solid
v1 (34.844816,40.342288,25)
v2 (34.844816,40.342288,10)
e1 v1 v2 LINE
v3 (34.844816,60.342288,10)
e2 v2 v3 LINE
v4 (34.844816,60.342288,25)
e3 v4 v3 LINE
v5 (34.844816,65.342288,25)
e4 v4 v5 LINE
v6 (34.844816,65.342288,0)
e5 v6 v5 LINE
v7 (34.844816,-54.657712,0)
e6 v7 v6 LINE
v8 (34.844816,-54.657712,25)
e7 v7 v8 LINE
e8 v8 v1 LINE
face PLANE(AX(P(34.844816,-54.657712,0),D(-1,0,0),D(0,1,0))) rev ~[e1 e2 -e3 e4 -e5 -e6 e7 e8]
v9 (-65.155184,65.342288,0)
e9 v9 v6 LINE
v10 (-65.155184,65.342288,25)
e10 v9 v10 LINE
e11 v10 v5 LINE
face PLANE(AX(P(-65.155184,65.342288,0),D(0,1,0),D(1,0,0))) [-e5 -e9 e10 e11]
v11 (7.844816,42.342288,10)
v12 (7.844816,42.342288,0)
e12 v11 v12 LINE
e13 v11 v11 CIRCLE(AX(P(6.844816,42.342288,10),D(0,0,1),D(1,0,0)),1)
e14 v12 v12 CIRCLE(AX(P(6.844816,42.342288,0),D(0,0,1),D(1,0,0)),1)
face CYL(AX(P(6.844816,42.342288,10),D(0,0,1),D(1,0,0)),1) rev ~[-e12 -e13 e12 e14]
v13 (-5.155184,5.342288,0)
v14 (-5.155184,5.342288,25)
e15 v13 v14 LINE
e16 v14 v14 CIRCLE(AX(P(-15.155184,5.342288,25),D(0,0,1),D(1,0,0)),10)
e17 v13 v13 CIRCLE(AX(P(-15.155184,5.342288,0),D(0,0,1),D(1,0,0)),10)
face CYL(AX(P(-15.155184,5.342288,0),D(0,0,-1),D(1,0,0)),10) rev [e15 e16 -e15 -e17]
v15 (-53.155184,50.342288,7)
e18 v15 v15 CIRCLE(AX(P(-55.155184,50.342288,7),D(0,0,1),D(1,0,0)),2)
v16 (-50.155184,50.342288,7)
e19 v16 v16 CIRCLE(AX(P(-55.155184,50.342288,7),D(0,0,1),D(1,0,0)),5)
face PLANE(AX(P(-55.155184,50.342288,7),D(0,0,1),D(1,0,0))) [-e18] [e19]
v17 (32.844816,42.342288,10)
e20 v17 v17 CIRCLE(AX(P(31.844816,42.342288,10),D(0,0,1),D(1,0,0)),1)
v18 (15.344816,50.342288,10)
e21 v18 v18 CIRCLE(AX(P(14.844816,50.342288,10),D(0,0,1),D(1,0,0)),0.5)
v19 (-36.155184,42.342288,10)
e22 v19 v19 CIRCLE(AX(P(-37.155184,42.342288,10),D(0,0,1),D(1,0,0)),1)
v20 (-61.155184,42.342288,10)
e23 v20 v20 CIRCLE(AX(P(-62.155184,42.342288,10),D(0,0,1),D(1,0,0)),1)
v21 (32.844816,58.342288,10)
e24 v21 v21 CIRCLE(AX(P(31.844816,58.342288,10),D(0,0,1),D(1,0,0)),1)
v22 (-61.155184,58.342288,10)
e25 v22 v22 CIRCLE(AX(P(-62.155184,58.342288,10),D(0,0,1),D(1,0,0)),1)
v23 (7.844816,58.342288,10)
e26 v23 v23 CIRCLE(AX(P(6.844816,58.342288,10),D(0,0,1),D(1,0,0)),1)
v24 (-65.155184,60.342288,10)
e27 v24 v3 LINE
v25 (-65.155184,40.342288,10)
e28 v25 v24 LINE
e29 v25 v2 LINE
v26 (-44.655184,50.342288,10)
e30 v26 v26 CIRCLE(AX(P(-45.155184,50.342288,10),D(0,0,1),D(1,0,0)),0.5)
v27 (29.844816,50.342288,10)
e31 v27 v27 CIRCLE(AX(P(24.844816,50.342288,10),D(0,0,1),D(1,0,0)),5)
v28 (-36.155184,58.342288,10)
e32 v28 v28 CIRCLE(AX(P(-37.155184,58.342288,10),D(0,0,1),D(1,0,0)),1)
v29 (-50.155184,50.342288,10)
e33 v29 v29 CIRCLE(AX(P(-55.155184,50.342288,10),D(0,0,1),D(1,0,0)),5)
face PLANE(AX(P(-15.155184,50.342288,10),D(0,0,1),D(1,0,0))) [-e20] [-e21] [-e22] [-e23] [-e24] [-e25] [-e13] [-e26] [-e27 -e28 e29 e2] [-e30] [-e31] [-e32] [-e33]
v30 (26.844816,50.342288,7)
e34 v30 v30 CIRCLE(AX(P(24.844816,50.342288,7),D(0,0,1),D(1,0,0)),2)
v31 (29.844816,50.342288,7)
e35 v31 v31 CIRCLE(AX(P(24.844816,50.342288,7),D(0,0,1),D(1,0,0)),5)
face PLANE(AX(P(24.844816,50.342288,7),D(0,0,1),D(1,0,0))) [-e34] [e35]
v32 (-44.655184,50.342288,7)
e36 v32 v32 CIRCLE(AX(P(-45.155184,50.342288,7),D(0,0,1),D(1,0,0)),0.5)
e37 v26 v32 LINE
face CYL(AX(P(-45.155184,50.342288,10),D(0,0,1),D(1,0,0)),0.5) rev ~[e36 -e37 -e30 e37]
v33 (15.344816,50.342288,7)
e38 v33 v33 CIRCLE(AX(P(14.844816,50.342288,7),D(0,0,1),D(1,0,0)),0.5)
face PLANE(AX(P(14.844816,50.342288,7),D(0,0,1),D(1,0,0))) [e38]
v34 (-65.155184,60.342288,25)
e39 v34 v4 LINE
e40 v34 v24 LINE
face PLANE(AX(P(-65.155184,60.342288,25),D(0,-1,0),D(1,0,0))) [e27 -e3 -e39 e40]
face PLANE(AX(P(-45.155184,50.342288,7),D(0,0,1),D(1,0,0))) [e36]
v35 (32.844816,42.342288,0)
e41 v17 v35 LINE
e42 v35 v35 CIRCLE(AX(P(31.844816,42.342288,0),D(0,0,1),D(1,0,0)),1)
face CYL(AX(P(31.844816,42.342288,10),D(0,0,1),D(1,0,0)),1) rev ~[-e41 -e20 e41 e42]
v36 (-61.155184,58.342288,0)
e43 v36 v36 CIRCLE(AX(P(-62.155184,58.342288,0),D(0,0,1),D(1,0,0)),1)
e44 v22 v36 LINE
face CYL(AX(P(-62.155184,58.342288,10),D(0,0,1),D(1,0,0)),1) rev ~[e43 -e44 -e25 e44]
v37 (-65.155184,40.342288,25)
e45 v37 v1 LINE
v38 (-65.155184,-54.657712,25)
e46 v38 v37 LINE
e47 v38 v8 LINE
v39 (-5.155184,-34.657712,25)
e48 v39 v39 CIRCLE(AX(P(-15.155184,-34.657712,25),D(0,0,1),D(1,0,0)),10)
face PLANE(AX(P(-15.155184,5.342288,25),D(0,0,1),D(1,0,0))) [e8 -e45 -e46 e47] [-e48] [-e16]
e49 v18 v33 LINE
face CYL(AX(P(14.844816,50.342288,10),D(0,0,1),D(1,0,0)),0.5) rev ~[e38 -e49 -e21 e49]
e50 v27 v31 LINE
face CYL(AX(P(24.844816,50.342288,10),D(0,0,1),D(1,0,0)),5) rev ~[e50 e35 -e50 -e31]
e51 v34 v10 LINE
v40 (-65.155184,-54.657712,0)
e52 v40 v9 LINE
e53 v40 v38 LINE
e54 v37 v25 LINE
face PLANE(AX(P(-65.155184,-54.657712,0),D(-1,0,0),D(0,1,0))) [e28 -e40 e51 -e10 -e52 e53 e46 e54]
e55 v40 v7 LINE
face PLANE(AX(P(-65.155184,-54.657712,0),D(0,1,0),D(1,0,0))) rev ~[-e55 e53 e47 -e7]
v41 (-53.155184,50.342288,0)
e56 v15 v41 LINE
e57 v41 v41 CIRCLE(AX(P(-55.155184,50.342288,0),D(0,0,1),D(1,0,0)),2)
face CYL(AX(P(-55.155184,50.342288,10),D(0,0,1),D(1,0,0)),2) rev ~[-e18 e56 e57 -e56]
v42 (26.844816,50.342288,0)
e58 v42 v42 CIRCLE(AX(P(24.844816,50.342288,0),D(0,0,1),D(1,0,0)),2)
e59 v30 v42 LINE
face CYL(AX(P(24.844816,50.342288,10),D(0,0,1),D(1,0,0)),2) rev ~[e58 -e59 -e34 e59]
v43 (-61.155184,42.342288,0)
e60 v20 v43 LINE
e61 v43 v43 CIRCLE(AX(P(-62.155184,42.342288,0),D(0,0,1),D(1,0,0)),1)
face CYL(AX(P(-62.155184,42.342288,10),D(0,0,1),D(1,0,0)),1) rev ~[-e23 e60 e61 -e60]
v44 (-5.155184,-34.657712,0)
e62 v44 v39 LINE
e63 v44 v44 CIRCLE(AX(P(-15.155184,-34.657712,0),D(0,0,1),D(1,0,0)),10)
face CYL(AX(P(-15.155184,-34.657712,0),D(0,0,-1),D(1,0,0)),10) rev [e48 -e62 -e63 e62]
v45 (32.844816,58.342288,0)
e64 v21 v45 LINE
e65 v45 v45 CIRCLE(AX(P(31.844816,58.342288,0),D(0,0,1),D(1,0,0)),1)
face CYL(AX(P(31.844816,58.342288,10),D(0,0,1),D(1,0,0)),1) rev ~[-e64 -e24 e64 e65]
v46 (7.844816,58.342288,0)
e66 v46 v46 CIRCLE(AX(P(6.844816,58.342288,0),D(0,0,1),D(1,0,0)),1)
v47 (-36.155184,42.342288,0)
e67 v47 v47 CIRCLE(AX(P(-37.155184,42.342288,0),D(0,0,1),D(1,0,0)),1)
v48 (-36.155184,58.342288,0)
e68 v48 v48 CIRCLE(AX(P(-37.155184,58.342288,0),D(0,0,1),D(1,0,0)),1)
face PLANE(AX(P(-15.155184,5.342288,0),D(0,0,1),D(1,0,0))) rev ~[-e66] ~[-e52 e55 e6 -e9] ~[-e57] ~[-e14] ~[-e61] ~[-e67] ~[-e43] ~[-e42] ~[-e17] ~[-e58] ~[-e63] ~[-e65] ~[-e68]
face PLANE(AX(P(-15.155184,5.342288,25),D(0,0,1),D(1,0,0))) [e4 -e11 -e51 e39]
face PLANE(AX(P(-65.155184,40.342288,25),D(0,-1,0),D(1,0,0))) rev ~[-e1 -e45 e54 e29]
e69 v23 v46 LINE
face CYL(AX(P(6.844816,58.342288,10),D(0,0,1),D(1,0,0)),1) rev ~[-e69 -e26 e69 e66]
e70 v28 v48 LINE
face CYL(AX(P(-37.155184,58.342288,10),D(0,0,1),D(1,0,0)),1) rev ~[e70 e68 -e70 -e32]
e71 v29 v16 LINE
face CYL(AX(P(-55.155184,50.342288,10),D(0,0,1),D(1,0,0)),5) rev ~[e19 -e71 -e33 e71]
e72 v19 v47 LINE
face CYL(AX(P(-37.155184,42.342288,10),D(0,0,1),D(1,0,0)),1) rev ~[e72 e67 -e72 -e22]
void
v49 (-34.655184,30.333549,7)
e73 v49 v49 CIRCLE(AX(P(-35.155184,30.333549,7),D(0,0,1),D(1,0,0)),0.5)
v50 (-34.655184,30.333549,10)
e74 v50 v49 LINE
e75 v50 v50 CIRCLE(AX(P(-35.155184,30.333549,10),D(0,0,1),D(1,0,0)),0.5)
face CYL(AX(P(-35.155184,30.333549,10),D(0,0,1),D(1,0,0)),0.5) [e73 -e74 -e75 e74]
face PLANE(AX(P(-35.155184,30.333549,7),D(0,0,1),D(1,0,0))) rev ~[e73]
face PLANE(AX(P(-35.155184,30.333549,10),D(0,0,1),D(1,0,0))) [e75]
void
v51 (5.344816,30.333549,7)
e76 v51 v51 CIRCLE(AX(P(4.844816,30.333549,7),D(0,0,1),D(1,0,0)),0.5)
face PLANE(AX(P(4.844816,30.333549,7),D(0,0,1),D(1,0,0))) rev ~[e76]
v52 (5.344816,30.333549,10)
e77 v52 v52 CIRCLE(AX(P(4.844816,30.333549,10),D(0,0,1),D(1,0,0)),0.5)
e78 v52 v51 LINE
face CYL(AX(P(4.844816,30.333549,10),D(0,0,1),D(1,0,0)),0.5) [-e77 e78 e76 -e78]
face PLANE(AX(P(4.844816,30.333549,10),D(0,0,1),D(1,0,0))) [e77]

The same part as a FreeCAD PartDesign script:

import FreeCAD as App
import Part
import Sketcher


def add_polygon(sketch, points):
    """Adds a closed chain of lines whose ends are joined by coincident constraints."""
    first, n = sketch.GeometryCount, len(points)
    for a, b in zip(points, points[1:] + points[:1]):
        sketch.addGeometry(Part.LineSegment(App.Vector(*a, 0), App.Vector(*b, 0)), False)
    for i in range(n):
        sketch.addConstraint(Sketcher.Constraint("Coincident", first + i, 2, first + (i + 1) % n, 1))

doc = App.newDocument("Part")
body = doc.addObject("PartDesign::Body", "Body")

# Sketch on XY plane
sketch1 = doc.addObject("Sketcher::SketchObject", "Sketch")
body.addObject(sketch1)
sketch1.AttachmentSupport = (doc.XY_Plane, [""])
sketch1.MapMode = "FlatFace"
add_polygon(sketch1, [(-65, 65), (-65, -55), (35, -55), (35, 65)])  # lines 0-3
sketch1.addGeometry(Part.Circle(App.Vector(-15, -35, 0), App.Vector(0, 0, 1), 10), False)  # 4
sketch1.addGeometry(Part.Circle(App.Vector(-15, 5, 0), App.Vector(0, 0, 1), 10), False)  # 5
sketch1.addConstraint(Sketcher.Constraint("Vertical", 0))
sketch1.addConstraint(Sketcher.Constraint("Horizontal", 1))
sketch1.addConstraint(Sketcher.Constraint("Vertical", 2))
sketch1.addConstraint(Sketcher.Constraint("Horizontal", 3))
sketch1.addConstraint(Sketcher.Constraint("Equal", 4, 5))
sketch1.addConstraint(Sketcher.Constraint("Vertical", 4, 3, 5, 3))
sketch1.addConstraint(Sketcher.Constraint("Diameter", 4, 20.0))
sketch1.addConstraint(Sketcher.Constraint("DistanceX", 1, 1, 1, 2, 100.0))
sketch1.addConstraint(Sketcher.Constraint("DistanceY", 0, 2, 0, 1, 120.0))
sketch1.addConstraint(Sketcher.Constraint("DistanceY", 4, 3, 5, 3, 40.0))
sketch1.addConstraint(Sketcher.Constraint("DistanceX", 0, 2, 4, 3, 50.0))
sketch1.addConstraint(Sketcher.Constraint("DistanceY", 0, 2, 4, 3, 20.0))
sketch1.addConstraint(Sketcher.Constraint("DistanceY", 4, 3, -1, 1, 34.657712))
sketch1.addConstraint(Sketcher.Constraint("DistanceX", 4, 3, -1, 1, 15.155184))
pad1 = doc.addObject("PartDesign::Pad", "Pad")
body.addObject(pad1)
pad1.Profile = sketch1
pad1.Length = 25

# Sketch on XY plane
sketch2 = doc.addObject("Sketcher::SketchObject", "Sketch001")
body.addObject(sketch2)
sketch2.AttachmentSupport = (doc.XY_Plane, [""])
sketch2.MapMode = "FlatFace"
sketch2.AttachmentOffset = App.Placement(App.Vector(0, 0, 25), App.Rotation())
add_polygon(sketch2, [(-65, 60), (-65, 40), (35, 40), (35, 60)])  # lines 0-3
sketch2.addConstraint(Sketcher.Constraint("Vertical", 0))
sketch2.addConstraint(Sketcher.Constraint("Horizontal", 1))
sketch2.addConstraint(Sketcher.Constraint("Vertical", 2))
sketch2.addConstraint(Sketcher.Constraint("Horizontal", 3))
sketch2.addConstraint(Sketcher.Constraint("DistanceX", 1, 1, 1, 2, 100.0))
sketch2.addConstraint(Sketcher.Constraint("DistanceY", 0, 2, 0, 1, 20.0))
sketch2.addConstraint(Sketcher.Constraint("DistanceY", -1, 1, 0, 2, 40.342288))
sketch2.addConstraint(Sketcher.Constraint("DistanceX", 0, 2, -1, 1, 65.155184))
pocket1 = doc.addObject("PartDesign::Pocket", "Pocket")
body.addObject(pocket1)
pocket1.Profile = sketch2
pocket1.Length = 15

# Sketch on XY plane
sketch3 = doc.addObject("Sketcher::SketchObject", "Sketch002")
body.addObject(sketch3)
sketch3.AttachmentSupport = (doc.XY_Plane, [""])
sketch3.MapMode = "FlatFace"
sketch3.AttachmentOffset = App.Placement(App.Vector(0, 0, 10), App.Rotation())
sketch3.addGeometry(Part.Circle(App.Vector(-62.2, 58.3, 0), App.Vector(0, 0, 1), 1), False)
sketch3.addGeometry(Part.Circle(App.Vector(-37.2, 58.3, 0), App.Vector(0, 0, 1), 1), False)
sketch3.addGeometry(Part.Circle(App.Vector(-55.2, 50.3, 0), App.Vector(0, 0, 1), 5), False)
sketch3.addGeometry(Part.Circle(App.Vector(-45.2, 50.3, 0), App.Vector(0, 0, 1), 0.5), False)
sketch3.addGeometry(Part.Circle(App.Vector(-35.2, 30.3, 0), App.Vector(0, 0, 1), 0.5), False)
sketch3.addGeometry(Part.Circle(App.Vector(-62.2, 42.3, 0), App.Vector(0, 0, 1), 1), False)
sketch3.addGeometry(Part.Circle(App.Vector(-37.2, 42.3, 0), App.Vector(0, 0, 1), 1), False)
sketch3.addGeometry(Part.Circle(App.Vector(31.8, 58.3, 0), App.Vector(0, 0, 1), 1), False)
sketch3.addGeometry(Part.Circle(App.Vector(6.8, 58.3, 0), App.Vector(0, 0, 1), 1), False)
sketch3.addGeometry(Part.Circle(App.Vector(24.8, 50.3, 0), App.Vector(0, 0, 1), 5), False)
sketch3.addGeometry(Part.Circle(App.Vector(31.8, 42.3, 0), App.Vector(0, 0, 1), 1), False)
sketch3.addGeometry(Part.Circle(App.Vector(6.8, 42.3, 0), App.Vector(0, 0, 1), 1), False)
sketch3.addGeometry(Part.Circle(App.Vector(14.8, 50.3, 0), App.Vector(0, 0, 1), 0.5), False)
sketch3.addGeometry(Part.Circle(App.Vector(4.8, 30.3, 0), App.Vector(0, 0, 1), 0.5), False)
sketch3.addConstraint(Sketcher.Constraint("Equal", 0, 1))
sketch3.addConstraint(Sketcher.Constraint("Equal", 3, 4))
sketch3.addConstraint(Sketcher.Constraint("Equal", 1, 5))
sketch3.addConstraint(Sketcher.Constraint("Equal", 5, 6))
sketch3.addConstraint(Sketcher.Constraint("Equal", 6, 7))
sketch3.addConstraint(Sketcher.Constraint("Equal", 7, 8))
sketch3.addConstraint(Sketcher.Constraint("Equal", 2, 9))
sketch3.addConstraint(Sketcher.Constraint("Equal", 8, 10))
sketch3.addConstraint(Sketcher.Constraint("Equal", 10, 11))
sketch3.addConstraint(Sketcher.Constraint("Equal", 4, 12))
sketch3.addConstraint(Sketcher.Constraint("Equal", 12, 13))
sketch3.addConstraint(Sketcher.Constraint("Horizontal", 0, 3, 1, 3))
sketch3.addConstraint(Sketcher.Constraint("Horizontal", 2, 3, 3, 3))
sketch3.addConstraint(Sketcher.Constraint("Horizontal", 5, 3, 6, 3))
sketch3.addConstraint(Sketcher.Constraint("Horizontal", 1, 3, 7, 3))
sketch3.addConstraint(Sketcher.Constraint("Horizontal", 7, 3, 8, 3))
sketch3.addConstraint(Sketcher.Constraint("Horizontal", 3, 3, 9, 3))
sketch3.addConstraint(Sketcher.Constraint("Horizontal", 6, 3, 10, 3))
sketch3.addConstraint(Sketcher.Constraint("Horizontal", 10, 3, 11, 3))
sketch3.addConstraint(Sketcher.Constraint("Horizontal", 9, 3, 12, 3))
sketch3.addConstraint(Sketcher.Constraint("Horizontal", 4, 3, 13, 3))
sketch3.addConstraint(Sketcher.Constraint("Vertical", 0, 3, 5, 3))
sketch3.addConstraint(Sketcher.Constraint("Vertical", 1, 3, 6, 3))
sketch3.addConstraint(Sketcher.Constraint("Vertical", 7, 3, 10, 3))
sketch3.addConstraint(Sketcher.Constraint("Vertical", 8, 3, 11, 3))
sketch3.addConstraint(Sketcher.Constraint("Diameter", 0, 2.0))
sketch3.addConstraint(Sketcher.Constraint("Diameter", 2, 10.0))
sketch3.addConstraint(Sketcher.Constraint("Diameter", 3, 1.0))
sketch3.addConstraint(Sketcher.Constraint("DistanceX", 0, 3, 1, 3, 25.0))
sketch3.addConstraint(Sketcher.Constraint("DistanceX", 0, 3, 2, 3, 7.0))
sketch3.addConstraint(Sketcher.Constraint("DistanceY", 2, 3, 0, 3, 8.0))
sketch3.addConstraint(Sketcher.Constraint("DistanceX", 2, 3, 3, 3, 10.0))
sketch3.addConstraint(Sketcher.Constraint("DistanceX", 3, 3, 4, 3, 10.0))
sketch3.addConstraint(Sketcher.Constraint("DistanceY", 5, 3, 2, 3, 8.0))
sketch3.addConstraint(Sketcher.Constraint("DistanceX", 1, 3, 7, 3, 69.0))
sketch3.addConstraint(Sketcher.Constraint("DistanceX", 8, 3, 7, 3, 25.0))
sketch3.addConstraint(Sketcher.Constraint("DistanceX", 9, 3, 7, 3, 7.0))
sketch3.addConstraint(Sketcher.Constraint("DistanceX", 12, 3, 9, 3, 10.0))
sketch3.addConstraint(Sketcher.Constraint("DistanceX", 13, 3, 11, 3, 2.0))
sketch3.addConstraint(Sketcher.Constraint("DistanceY", -1, 1, 0, 3, 58.342288))
sketch3.addConstraint(Sketcher.Constraint("DistanceY", -1, 1, 4, 3, 30.333549))
sketch3.addConstraint(Sketcher.Constraint("DistanceX", 0, 3, -1, 1, 62.155184))
pocket2 = doc.addObject("PartDesign::Pocket", "Pocket001")
body.addObject(pocket2)
pocket2.Profile = sketch3
pocket2.Length = 3

# Sketch on XY plane
sketch4 = doc.addObject("Sketcher::SketchObject", "Sketch003")
body.addObject(sketch4)
sketch4.AttachmentSupport = (doc.XY_Plane, [""])
sketch4.MapMode = "FlatFace"
sketch4.AttachmentOffset = App.Placement(App.Vector(0, 0, 10), App.Rotation())
sketch4.addGeometry(Part.Circle(App.Vector(24.8, 50.3, 0), App.Vector(0, 0, 1), 2), False)
sketch4.addGeometry(Part.Circle(App.Vector(31.8, 42.3, 0), App.Vector(0, 0, 1), 1), False)
sketch4.addGeometry(Part.Circle(App.Vector(31.8, 58.3, 0), App.Vector(0, 0, 1), 1), False)
sketch4.addGeometry(Part.Circle(App.Vector(6.8, 42.3, 0), App.Vector(0, 0, 1), 1), False)
sketch4.addGeometry(Part.Circle(App.Vector(-37.2, 42.3, 0), App.Vector(0, 0, 1), 1), False)
sketch4.addGeometry(Part.Circle(App.Vector(-62.2, 42.3, 0), App.Vector(0, 0, 1), 1), False)
sketch4.addGeometry(Part.Circle(App.Vector(6.8, 58.3, 0), App.Vector(0, 0, 1), 1), False)
sketch4.addGeometry(Part.Circle(App.Vector(-37.2, 58.3, 0), App.Vector(0, 0, 1), 1), False)
sketch4.addGeometry(Part.Circle(App.Vector(-55.2, 50.3, 0), App.Vector(0, 0, 1), 2), False)
sketch4.addGeometry(Part.Circle(App.Vector(-62.2, 58.3, 0), App.Vector(0, 0, 1), 1), False)
sketch4.addConstraint(Sketcher.Constraint("Equal", 1, 2))
sketch4.addConstraint(Sketcher.Constraint("Equal", 2, 3))
sketch4.addConstraint(Sketcher.Constraint("Equal", 3, 4))
sketch4.addConstraint(Sketcher.Constraint("Equal", 4, 5))
sketch4.addConstraint(Sketcher.Constraint("Equal", 5, 6))
sketch4.addConstraint(Sketcher.Constraint("Equal", 6, 7))
sketch4.addConstraint(Sketcher.Constraint("Equal", 0, 8))
sketch4.addConstraint(Sketcher.Constraint("Equal", 7, 9))
sketch4.addConstraint(Sketcher.Constraint("Horizontal", 1, 3, 3, 3))
sketch4.addConstraint(Sketcher.Constraint("Horizontal", 3, 3, 4, 3))
sketch4.addConstraint(Sketcher.Constraint("Horizontal", 4, 3, 5, 3))
sketch4.addConstraint(Sketcher.Constraint("Horizontal", 2, 3, 6, 3))
sketch4.addConstraint(Sketcher.Constraint("Horizontal", 6, 3, 7, 3))
sketch4.addConstraint(Sketcher.Constraint("Horizontal", 0, 3, 8, 3))
sketch4.addConstraint(Sketcher.Constraint("Horizontal", 7, 3, 9, 3))
sketch4.addConstraint(Sketcher.Constraint("Vertical", 1, 3, 2, 3))
sketch4.addConstraint(Sketcher.Constraint("Vertical", 3, 3, 6, 3))
sketch4.addConstraint(Sketcher.Constraint("Vertical", 4, 3, 7, 3))
sketch4.addConstraint(Sketcher.Constraint("Vertical", 5, 3, 9, 3))
sketch4.addConstraint(Sketcher.Constraint("Diameter", 0, 4.0))
sketch4.addConstraint(Sketcher.Constraint("Diameter", 1, 2.0))
sketch4.addConstraint(Sketcher.Constraint("DistanceX", 0, 3, 1, 3, 7.0))
sketch4.addConstraint(Sketcher.Constraint("DistanceY", 1, 3, 0, 3, 8.0))
sketch4.addConstraint(Sketcher.Constraint("DistanceY", 0, 3, 2, 3, 8.0))
sketch4.addConstraint(Sketcher.Constraint("DistanceX", 3, 3, 0, 3, 18.0))
sketch4.addConstraint(Sketcher.Constraint("DistanceX", 4, 3, 3, 3, 44.0))
sketch4.addConstraint(Sketcher.Constraint("DistanceX", 5, 3, 4, 3, 25.0))
sketch4.addConstraint(Sketcher.Constraint("DistanceX", 5, 3, 8, 3, 7.0))
sketch4.addConstraint(Sketcher.Constraint("DistanceY", -1, 1, 0, 3, 50.342288))
sketch4.addConstraint(Sketcher.Constraint("DistanceX", -1, 1, 0, 3, 24.844816))
pocket3 = doc.addObject("PartDesign::Pocket", "Pocket002")
body.addObject(pocket3)
pocket3.Profile = sketch4
pocket3.Length = 25

doc.recompute()
